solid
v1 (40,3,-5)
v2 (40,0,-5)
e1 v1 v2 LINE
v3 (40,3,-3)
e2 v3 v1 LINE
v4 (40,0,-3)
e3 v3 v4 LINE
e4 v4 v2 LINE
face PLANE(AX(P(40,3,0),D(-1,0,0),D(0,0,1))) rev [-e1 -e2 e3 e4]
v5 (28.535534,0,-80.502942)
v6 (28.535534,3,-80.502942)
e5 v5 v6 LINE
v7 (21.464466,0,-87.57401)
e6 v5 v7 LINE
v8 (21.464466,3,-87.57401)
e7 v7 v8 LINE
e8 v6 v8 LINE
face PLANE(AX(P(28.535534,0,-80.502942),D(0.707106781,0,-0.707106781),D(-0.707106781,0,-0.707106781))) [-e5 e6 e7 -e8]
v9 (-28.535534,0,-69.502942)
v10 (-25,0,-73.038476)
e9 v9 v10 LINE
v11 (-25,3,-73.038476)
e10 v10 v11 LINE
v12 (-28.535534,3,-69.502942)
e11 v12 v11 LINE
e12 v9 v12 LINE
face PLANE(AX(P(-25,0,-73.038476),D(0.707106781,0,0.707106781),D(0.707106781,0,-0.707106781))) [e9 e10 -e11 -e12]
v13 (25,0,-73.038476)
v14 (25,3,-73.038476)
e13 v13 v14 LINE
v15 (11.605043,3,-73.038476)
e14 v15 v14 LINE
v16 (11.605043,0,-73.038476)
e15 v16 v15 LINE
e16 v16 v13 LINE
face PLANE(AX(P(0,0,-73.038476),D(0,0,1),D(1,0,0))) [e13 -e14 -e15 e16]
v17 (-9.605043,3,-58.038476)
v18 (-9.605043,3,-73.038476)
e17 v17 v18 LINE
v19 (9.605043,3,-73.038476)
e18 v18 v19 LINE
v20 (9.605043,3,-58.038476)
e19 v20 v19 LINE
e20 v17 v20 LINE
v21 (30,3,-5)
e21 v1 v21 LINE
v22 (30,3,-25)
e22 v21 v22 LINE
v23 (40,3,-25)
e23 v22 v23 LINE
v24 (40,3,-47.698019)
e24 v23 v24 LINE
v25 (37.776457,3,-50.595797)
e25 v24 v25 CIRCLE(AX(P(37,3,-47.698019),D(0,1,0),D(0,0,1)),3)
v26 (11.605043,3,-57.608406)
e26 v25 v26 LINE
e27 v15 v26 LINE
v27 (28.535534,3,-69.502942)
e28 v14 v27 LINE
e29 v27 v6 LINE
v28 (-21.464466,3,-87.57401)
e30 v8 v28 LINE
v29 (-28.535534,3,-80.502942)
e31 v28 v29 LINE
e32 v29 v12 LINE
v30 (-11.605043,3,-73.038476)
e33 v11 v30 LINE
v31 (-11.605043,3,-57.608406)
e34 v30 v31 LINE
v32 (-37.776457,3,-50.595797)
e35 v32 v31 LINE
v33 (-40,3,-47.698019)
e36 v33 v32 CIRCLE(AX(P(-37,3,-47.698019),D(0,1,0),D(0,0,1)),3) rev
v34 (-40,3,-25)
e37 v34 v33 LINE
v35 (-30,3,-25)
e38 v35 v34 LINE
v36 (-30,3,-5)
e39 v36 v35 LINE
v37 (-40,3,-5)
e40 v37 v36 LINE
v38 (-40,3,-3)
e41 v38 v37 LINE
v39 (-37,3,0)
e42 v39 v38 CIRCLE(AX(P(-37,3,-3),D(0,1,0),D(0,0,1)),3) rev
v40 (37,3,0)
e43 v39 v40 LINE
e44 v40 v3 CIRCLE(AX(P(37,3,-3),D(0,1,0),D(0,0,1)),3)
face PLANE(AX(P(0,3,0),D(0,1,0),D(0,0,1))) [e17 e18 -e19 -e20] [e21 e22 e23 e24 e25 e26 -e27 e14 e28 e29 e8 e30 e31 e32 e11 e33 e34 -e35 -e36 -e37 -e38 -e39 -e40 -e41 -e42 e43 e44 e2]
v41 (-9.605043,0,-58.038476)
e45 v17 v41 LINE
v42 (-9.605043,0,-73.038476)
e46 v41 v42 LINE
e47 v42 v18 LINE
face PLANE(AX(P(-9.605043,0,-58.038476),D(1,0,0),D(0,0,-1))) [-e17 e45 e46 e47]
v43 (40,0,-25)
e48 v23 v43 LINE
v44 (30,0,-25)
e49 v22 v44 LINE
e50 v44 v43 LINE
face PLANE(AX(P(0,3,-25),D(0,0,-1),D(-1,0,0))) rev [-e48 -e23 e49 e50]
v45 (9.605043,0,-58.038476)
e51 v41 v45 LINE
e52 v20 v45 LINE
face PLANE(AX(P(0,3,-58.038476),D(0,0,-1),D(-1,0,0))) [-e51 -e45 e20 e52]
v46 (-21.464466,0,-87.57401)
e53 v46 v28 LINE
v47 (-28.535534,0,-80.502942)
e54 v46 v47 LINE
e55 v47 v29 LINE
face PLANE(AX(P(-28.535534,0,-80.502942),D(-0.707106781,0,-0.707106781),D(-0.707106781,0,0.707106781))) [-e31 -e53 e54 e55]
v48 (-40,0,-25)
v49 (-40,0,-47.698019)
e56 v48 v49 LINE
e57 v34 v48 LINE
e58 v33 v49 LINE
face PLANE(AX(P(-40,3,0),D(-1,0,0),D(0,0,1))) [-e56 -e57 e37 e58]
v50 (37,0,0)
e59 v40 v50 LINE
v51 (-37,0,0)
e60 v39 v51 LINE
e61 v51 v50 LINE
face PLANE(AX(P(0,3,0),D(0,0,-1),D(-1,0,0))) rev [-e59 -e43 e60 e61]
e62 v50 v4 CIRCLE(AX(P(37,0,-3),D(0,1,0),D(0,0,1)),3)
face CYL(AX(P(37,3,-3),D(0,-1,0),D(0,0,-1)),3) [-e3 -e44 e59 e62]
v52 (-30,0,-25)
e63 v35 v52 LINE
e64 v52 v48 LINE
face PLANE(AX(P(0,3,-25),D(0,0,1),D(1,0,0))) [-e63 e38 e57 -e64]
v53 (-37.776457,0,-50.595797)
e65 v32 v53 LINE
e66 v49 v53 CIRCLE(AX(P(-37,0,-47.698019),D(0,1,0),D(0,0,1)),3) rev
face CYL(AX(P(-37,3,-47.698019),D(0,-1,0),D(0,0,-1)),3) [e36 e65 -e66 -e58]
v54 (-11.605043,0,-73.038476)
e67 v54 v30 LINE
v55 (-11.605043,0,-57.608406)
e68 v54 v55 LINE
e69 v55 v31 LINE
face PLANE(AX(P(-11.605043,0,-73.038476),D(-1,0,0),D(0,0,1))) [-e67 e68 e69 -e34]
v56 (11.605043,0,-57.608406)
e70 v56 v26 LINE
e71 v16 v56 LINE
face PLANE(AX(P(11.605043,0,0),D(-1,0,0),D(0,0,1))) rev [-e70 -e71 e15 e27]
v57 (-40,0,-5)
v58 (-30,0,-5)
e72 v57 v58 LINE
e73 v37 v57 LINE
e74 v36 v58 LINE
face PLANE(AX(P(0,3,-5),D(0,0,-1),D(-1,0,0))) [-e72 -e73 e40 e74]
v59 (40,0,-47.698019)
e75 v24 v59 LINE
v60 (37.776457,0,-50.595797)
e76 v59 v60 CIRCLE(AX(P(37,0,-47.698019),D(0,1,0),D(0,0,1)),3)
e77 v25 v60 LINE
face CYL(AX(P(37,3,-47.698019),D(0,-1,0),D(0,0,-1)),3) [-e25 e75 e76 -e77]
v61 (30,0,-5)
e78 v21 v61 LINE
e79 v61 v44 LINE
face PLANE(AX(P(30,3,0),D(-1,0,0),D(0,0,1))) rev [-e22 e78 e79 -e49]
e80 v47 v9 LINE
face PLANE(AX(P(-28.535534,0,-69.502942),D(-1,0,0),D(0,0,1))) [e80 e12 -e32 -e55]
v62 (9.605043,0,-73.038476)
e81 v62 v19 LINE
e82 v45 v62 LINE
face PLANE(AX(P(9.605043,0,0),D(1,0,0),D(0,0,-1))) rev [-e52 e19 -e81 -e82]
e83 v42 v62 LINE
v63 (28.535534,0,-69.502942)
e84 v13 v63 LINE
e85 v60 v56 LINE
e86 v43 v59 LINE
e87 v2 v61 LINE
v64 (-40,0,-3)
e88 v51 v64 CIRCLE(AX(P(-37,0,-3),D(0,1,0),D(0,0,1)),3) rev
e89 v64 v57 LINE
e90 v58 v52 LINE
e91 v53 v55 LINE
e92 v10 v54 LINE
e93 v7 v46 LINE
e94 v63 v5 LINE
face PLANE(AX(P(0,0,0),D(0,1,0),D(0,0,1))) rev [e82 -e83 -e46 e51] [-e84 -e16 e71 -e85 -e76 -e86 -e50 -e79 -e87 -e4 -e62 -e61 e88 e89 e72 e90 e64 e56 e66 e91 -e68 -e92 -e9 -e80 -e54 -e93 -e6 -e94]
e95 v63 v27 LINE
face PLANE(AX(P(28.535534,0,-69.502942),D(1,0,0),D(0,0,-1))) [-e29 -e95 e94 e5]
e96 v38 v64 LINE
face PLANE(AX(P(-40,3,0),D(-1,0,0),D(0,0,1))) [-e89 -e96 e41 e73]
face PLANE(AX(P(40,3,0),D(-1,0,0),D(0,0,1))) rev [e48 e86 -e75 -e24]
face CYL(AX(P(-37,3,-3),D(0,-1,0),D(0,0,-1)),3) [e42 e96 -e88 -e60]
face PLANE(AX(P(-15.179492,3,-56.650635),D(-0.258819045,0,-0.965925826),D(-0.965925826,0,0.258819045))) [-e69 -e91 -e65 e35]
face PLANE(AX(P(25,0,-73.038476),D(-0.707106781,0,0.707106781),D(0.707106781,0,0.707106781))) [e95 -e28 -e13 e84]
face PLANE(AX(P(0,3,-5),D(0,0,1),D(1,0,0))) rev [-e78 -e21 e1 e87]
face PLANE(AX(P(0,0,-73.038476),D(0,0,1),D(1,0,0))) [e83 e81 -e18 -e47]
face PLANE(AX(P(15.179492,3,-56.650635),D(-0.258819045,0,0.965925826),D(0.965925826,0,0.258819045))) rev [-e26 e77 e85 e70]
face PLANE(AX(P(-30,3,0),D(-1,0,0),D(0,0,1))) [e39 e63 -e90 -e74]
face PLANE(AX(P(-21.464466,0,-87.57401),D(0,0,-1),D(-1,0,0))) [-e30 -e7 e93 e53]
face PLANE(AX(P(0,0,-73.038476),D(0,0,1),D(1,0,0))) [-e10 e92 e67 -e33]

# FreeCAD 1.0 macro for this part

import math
import FreeCAD as App
import Part
import Sketcher
from FreeCAD import Vector
Q = App.Units.Quantity


def add_polygon(sketch, points):
    """Adds a closed chain of lines whose ends are joined by coincident constraints."""
    first, n = sketch.GeometryCount, len(points)
    for a, b in zip(points, points[1:] + points[:1]):
        sketch.addGeometry(Part.LineSegment(App.Vector(*a, 0), App.Vector(*b, 0)), False)
    for i in range(n):
        sketch.addConstraint(Sketcher.Constraint("Coincident", first + i, 2, first + (i + 1) % n, 1))

doc = App.newDocument("Part")
params = doc.addObject("Spreadsheet::Sheet", "Params")
for row, (alias, value) in enumerate([
    ("sketch1_radius", "3 mm"),
    ("sketch1_width", "10 mm"),
    ("sketch1_width2", "74 mm"),
    ("sketch1_height", "20 mm"),
    ("sketch1_height2", "2 mm"),
    ("pad1_length", "3 mm"),
    ("sketch2_width", "2 mm"),
    ("sketch2_height", "15 mm"),
    ("pad2_length", "3 mm"),
    ("sketch3_width", "50 mm"),
    ("sketch3_height", "11 mm"),
    ("sketch3_length", "5 mm"),
    ("sketch3_length2", "10 mm"),
    ("pad3_length", "3 mm"),
], start=1):
    params.set(f"A{row}", alias)
    params.set(f"B{row}", "=" + value)
    params.setAlias(f"B{row}", alias)

body = doc.addObject("PartDesign::Body", "Body")

# Sketch on XZ plane
sketch1 = body.newObject("Sketcher::SketchObject", "Sketch")
sketch1.AttachmentSupport = (doc.getObject("XZ_Plane"), [""])
sketch1.MapMode = "FlatFace"
sketch1.addGeometry(Part.LineSegment(Vector(9.6, -58, 0), Vector(-9.6, -58, 0)), False)
sketch1.addGeometry(Part.ArcOfCircle(Part.Circle(Vector(-9.6, -55, 0), Vector(0, 0, 1), 3), math.radians(-105), math.radians(-90)), False)
sketch1.addGeometry(Part.LineSegment(Vector(-10.4, -57.9, 0), Vector(-37.8, -50.6, 0)), False)
sketch1.addGeometry(Part.ArcOfCircle(Part.Circle(Vector(-37, -47.7, 0), Vector(0, 0, 1), 3), math.radians(180), math.radians(255)), False)
sketch1.addGeometry(Part.LineSegment(Vector(-40, -47.7, 0), Vector(-40, -25, 0)), False)
sketch1.addGeometry(Part.LineSegment(Vector(-40, -25, 0), Vector(-30, -25, 0)), False)
sketch1.addGeometry(Part.LineSegment(Vector(-30, -25, 0), Vector(-30, -5, 0)), False)
sketch1.addGeometry(Part.LineSegment(Vector(-30, -5, 0), Vector(-40, -5, 0)), False)
sketch1.addGeometry(Part.LineSegment(Vector(-40, -5, 0), Vector(-40, -3, 0)), False)
sketch1.addGeometry(Part.ArcOfCircle(Part.Circle(Vector(-37, -3, 0), Vector(0, 0, 1), 3), math.radians(90), math.radians(180)), False)
sketch1.addGeometry(Part.LineSegment(Vector(-37, 0, 0), Vector(37, 0, 0)), False)
sketch1.addGeometry(Part.ArcOfCircle(Part.Circle(Vector(37, -3, 0), Vector(0, 0, 1), 3), math.radians(0), math.radians(90)), False)
sketch1.addGeometry(Part.LineSegment(Vector(40, -3, 0), Vector(40, -5, 0)), False)
sketch1.addGeometry(Part.LineSegment(Vector(40, -5, 0), Vector(30, -5, 0)), False)
sketch1.addGeometry(Part.LineSegment(Vector(30, -5, 0), Vector(30, -25, 0)), False)
sketch1.addGeometry(Part.LineSegment(Vector(30, -25, 0), Vector(40, -25, 0)), False)
sketch1.addGeometry(Part.LineSegment(Vector(40, -25, 0), Vector(40, -47.7, 0)), False)
sketch1.addGeometry(Part.ArcOfCircle(Part.Circle(Vector(37, -47.7, 0), Vector(0, 0, 1), 3), math.radians(-75), math.radians(0)), False)
sketch1.addGeometry(Part.LineSegment(Vector(37.8, -50.6, 0), Vector(10.4, -57.9, 0)), False)
sketch1.addGeometry(Part.ArcOfCircle(Part.Circle(Vector(9.6, -55, 0), Vector(0, 0, 1), 3), math.radians(-90), math.radians(-75)), False)
sketch1.addConstraint(Sketcher.Constraint("Tangent", 0, 2, 1, 2))
sketch1.addConstraint(Sketcher.Constraint("Tangent", 1, 1, 2, 1))
sketch1.addConstraint(Sketcher.Constraint("Tangent", 2, 2, 3, 2))
sketch1.addConstraint(Sketcher.Constraint("Tangent", 3, 1, 4, 1))
sketch1.addConstraint(Sketcher.Constraint("Coincident", 4, 2, 5, 1))
sketch1.addConstraint(Sketcher.Constraint("Coincident", 5, 2, 6, 1))
sketch1.addConstraint(Sketcher.Constraint("Coincident", 6, 2, 7, 1))
sketch1.addConstraint(Sketcher.Constraint("Coincident", 7, 2, 8, 1))
sketch1.addConstraint(Sketcher.Constraint("Tangent", 8, 2, 9, 2))
sketch1.addConstraint(Sketcher.Constraint("Tangent", 9, 1, 10, 1))
sketch1.addConstraint(Sketcher.Constraint("Tangent", 10, 2, 11, 2))
sketch1.addConstraint(Sketcher.Constraint("Tangent", 11, 1, 12, 1))
sketch1.addConstraint(Sketcher.Constraint("Coincident", 12, 2, 13, 1))
sketch1.addConstraint(Sketcher.Constraint("Coincident", 13, 2, 14, 1))
sketch1.addConstraint(Sketcher.Constraint("Coincident", 14, 2, 15, 1))
sketch1.addConstraint(Sketcher.Constraint("Coincident", 15, 2, 16, 1))
sketch1.addConstraint(Sketcher.Constraint("Tangent", 16, 2, 17, 2))
sketch1.addConstraint(Sketcher.Constraint("Tangent", 17, 1, 18, 1))
sketch1.addConstraint(Sketcher.Constraint("Tangent", 18, 2, 19, 2))
sketch1.addConstraint(Sketcher.Constraint("Tangent", 19, 1, 0, 1))
sketch1.addConstraint(Sketcher.Constraint("Horizontal", 0))
sketch1.addConstraint(Sketcher.Constraint("Vertical", 4))
sketch1.addConstraint(Sketcher.Constraint("Horizontal", 5))
sketch1.addConstraint(Sketcher.Constraint("Vertical", 6))
sketch1.addConstraint(Sketcher.Constraint("Horizontal", 7))
sketch1.addConstraint(Sketcher.Constraint("Vertical", 8))
sketch1.addConstraint(Sketcher.Constraint("Horizontal", 10))
sketch1.addConstraint(Sketcher.Constraint("Vertical", 12))
sketch1.addConstraint(Sketcher.Constraint("Horizontal", 13))
sketch1.addConstraint(Sketcher.Constraint("Vertical", 14))
sketch1.addConstraint(Sketcher.Constraint("Horizontal", 15))
sketch1.addConstraint(Sketcher.Constraint("Vertical", 16))
sketch1.addConstraint(Sketcher.Constraint("Equal", 1, 3))
sketch1.addConstraint(Sketcher.Constraint("Equal", 3, 9))
sketch1.addConstraint(Sketcher.Constraint("Equal", 9, 11))
sketch1.addConstraint(Sketcher.Constraint("Equal", 11, 17))
sketch1.addConstraint(Sketcher.Constraint("Equal", 17, 19))
sketch1.addConstraint(Sketcher.Constraint("Symmetric", 9, 1, 10, 2, -1, 1))
sketch1.addConstraint(Sketcher.Constraint("Symmetric", 3, 3, 17, 3, -2))
sketch1.addConstraint(Sketcher.Constraint("Symmetric", 6, 2, 13, 2, -2))
sketch1.addConstraint(Sketcher.Constraint("Horizontal", 5, 2, 14, 2))
sketch1.addConstraint(Sketcher.Constraint("Horizontal", 2, 2, 17, 1))
sketch1.addConstraint(Sketcher.Constraint("Vertical", 3, 3, 9, 3))
sketch1.addConstraint(Sketcher.Constraint("Radius", 1, Q("3 mm")))
sketch1.addConstraint(Sketcher.Constraint("DistanceX", 5, 1, 5, 2, Q("10 mm")))
sketch1.addConstraint(Sketcher.Constraint("DistanceX", 10, 1, 10, 2, Q("74 mm")))
sketch1.addConstraint(Sketcher.Constraint("DistanceY", 6, 1, 6, 2, Q("20 mm")))
sketch1.addConstraint(Sketcher.Constraint("DistanceY", 8, 1, 8, 2, Q("2 mm")))
sketch1.addConstraint(Sketcher.Constraint("Angle", 2, Q("165 deg")))
sketch1.addConstraint(Sketcher.Constraint("DistanceX", 1, 1, 18, 2, Q("20.762999 mm")))
sketch1.addConstraint(Sketcher.Constraint("DistanceY", 4, 1, 4, 2, Q("22.698019 mm")))
sketch1.setExpression("Constraints[43]", "Params.sketch1_radius")
sketch1.setExpression("Constraints[44]", "Params.sketch1_width")
sketch1.setExpression("Constraints[45]", "Params.sketch1_width2")
sketch1.setExpression("Constraints[46]", "Params.sketch1_height")
sketch1.setExpression("Constraints[47]", "Params.sketch1_height2")
pad1 = body.newObject("PartDesign::Pad", "Pad")
pad1.Profile = sketch1
pad1.setExpression("Length", "Params.pad1_length")
pad1.Reversed = True

# Sketch on XZ plane
sketch2 = body.newObject("Sketcher::SketchObject", "Sketch001")
sketch2.AttachmentSupport = (doc.getObject("XZ_Plane"), [""])
sketch2.MapMode = "FlatFace"
sketch2.AttachmentOffset = App.Placement(Vector(0, 0, -3), App.Rotation())
add_polygon(sketch2, [(-11.6, -57.6), (-9.6, -58), (-9.6, -73), (-11.6, -73)])  # lines 0-3
add_polygon(sketch2, [(9.6, -73), (9.6, -58), (11.6, -57.6), (11.6, -73)])  # lines 4-7
sketch2.addConstraint(Sketcher.Constraint("Vertical", 1))
sketch2.addConstraint(Sketcher.Constraint("Horizontal", 2))
sketch2.addConstraint(Sketcher.Constraint("Vertical", 3))
sketch2.addConstraint(Sketcher.Constraint("Vertical", 4))
sketch2.addConstraint(Sketcher.Constraint("Vertical", 6))
sketch2.addConstraint(Sketcher.Constraint("Horizontal", 7))
sketch2.addConstraint(Sketcher.Constraint("Symmetric", 0, 2, 4, 2, -2))
sketch2.addConstraint(Sketcher.Constraint("Symmetric", 3, 2, 5, 2, -2))
sketch2.addConstraint(Sketcher.Constraint("Horizontal", 2, 2, 6, 2))
sketch2.addConstraint(Sketcher.Constraint("DistanceX", 2, 2, 2, 1, Q("2 mm")))
sketch2.addConstraint(Sketcher.Constraint("DistanceY", 1, 2, 1, 1, Q("15 mm")))
sketch2.addConstraint(Sketcher.Constraint("DistanceY", 3, 1, 3, 2, Q("15.43007 mm")))
sketch2.addConstraint(Sketcher.Constraint("DistanceX", 0, 2, -1, 1, Q("9.605043 mm")))
sketch2.addConstraint(Sketcher.Constraint("DistanceY", 0, 2, -1, 1, Q("58.038476 mm")))
sketch2.setExpression("Constraints[17]", "Params.sketch2_width")
sketch2.setExpression("Constraints[18]", "Params.sketch2_height")
pad2 = body.newObject("PartDesign::Pad", "Pad001")
pad2.Profile = sketch2
pad2.setExpression("Length", "Params.pad2_length")

# Sketch on XZ plane
sketch3 = body.newObject("Sketcher::SketchObject", "Sketch002")
sketch3.AttachmentSupport = (doc.getObject("XZ_Plane"), [""])
sketch3.MapMode = "FlatFace"
sketch3.AttachmentOffset = App.Placement(Vector(0, 0, -3), App.Rotation())
add_polygon(sketch3, [(-25, -73), (25, -73), (29, -70), (29, -81), (21, -88), (-21, -88), (-29, -81), (-29, -70)])  # lines 0-7
sketch3.addConstraint(Sketcher.Constraint("Horizontal", 0))
sketch3.addConstraint(Sketcher.Constraint("Vertical", 2))
sketch3.addConstraint(Sketcher.Constraint("Horizontal", 4))
sketch3.addConstraint(Sketcher.Constraint("Vertical", 6))
sketch3.addConstraint(Sketcher.Constraint("Symmetric", 2, 2, 5, 2, -2))
sketch3.addConstraint(Sketcher.Constraint("Parallel", 1, 3))
sketch3.addConstraint(Sketcher.Constraint("Perpendicular", 3, 5))
sketch3.addConstraint(Sketcher.Constraint("Parallel", 5, 7))
sketch3.addConstraint(Sketcher.Constraint("Horizontal", 1, 2, 6, 2))
sketch3.addConstraint(Sketcher.Constraint("Equal", 3, 5))
sketch3.addConstraint(Sketcher.Constraint("DistanceX", 0, 1, 0, 2, Q("50 mm")))
sketch3.addConstraint(Sketcher.Constraint("DistanceY", 2, 2, 2, 1, Q("11 mm")))
sketch3.addConstraint(Sketcher.Constraint("Distance", 1, Q("5 mm")))
sketch3.addConstraint(Sketcher.Constraint("Distance", 3, Q("10 mm")))
sketch3.addConstraint(Sketcher.Constraint("DistanceY", 1, 2, -1, 1, Q("69.502942 mm")))
sketch3.setExpression("Constraints[18]", "Params.sketch3_width")
sketch3.setExpression("Constraints[19]", "Params.sketch3_height")
sketch3.setExpression("Constraints[20]", "Params.sketch3_length")
sketch3.setExpression("Constraints[21]", "Params.sketch3_length2")
pad3 = body.newObject("PartDesign::Pad", "Pad002")
pad3.Profile = sketch3
pad3.setExpression("Length", "Params.pad3_length")

doc.recompute()
